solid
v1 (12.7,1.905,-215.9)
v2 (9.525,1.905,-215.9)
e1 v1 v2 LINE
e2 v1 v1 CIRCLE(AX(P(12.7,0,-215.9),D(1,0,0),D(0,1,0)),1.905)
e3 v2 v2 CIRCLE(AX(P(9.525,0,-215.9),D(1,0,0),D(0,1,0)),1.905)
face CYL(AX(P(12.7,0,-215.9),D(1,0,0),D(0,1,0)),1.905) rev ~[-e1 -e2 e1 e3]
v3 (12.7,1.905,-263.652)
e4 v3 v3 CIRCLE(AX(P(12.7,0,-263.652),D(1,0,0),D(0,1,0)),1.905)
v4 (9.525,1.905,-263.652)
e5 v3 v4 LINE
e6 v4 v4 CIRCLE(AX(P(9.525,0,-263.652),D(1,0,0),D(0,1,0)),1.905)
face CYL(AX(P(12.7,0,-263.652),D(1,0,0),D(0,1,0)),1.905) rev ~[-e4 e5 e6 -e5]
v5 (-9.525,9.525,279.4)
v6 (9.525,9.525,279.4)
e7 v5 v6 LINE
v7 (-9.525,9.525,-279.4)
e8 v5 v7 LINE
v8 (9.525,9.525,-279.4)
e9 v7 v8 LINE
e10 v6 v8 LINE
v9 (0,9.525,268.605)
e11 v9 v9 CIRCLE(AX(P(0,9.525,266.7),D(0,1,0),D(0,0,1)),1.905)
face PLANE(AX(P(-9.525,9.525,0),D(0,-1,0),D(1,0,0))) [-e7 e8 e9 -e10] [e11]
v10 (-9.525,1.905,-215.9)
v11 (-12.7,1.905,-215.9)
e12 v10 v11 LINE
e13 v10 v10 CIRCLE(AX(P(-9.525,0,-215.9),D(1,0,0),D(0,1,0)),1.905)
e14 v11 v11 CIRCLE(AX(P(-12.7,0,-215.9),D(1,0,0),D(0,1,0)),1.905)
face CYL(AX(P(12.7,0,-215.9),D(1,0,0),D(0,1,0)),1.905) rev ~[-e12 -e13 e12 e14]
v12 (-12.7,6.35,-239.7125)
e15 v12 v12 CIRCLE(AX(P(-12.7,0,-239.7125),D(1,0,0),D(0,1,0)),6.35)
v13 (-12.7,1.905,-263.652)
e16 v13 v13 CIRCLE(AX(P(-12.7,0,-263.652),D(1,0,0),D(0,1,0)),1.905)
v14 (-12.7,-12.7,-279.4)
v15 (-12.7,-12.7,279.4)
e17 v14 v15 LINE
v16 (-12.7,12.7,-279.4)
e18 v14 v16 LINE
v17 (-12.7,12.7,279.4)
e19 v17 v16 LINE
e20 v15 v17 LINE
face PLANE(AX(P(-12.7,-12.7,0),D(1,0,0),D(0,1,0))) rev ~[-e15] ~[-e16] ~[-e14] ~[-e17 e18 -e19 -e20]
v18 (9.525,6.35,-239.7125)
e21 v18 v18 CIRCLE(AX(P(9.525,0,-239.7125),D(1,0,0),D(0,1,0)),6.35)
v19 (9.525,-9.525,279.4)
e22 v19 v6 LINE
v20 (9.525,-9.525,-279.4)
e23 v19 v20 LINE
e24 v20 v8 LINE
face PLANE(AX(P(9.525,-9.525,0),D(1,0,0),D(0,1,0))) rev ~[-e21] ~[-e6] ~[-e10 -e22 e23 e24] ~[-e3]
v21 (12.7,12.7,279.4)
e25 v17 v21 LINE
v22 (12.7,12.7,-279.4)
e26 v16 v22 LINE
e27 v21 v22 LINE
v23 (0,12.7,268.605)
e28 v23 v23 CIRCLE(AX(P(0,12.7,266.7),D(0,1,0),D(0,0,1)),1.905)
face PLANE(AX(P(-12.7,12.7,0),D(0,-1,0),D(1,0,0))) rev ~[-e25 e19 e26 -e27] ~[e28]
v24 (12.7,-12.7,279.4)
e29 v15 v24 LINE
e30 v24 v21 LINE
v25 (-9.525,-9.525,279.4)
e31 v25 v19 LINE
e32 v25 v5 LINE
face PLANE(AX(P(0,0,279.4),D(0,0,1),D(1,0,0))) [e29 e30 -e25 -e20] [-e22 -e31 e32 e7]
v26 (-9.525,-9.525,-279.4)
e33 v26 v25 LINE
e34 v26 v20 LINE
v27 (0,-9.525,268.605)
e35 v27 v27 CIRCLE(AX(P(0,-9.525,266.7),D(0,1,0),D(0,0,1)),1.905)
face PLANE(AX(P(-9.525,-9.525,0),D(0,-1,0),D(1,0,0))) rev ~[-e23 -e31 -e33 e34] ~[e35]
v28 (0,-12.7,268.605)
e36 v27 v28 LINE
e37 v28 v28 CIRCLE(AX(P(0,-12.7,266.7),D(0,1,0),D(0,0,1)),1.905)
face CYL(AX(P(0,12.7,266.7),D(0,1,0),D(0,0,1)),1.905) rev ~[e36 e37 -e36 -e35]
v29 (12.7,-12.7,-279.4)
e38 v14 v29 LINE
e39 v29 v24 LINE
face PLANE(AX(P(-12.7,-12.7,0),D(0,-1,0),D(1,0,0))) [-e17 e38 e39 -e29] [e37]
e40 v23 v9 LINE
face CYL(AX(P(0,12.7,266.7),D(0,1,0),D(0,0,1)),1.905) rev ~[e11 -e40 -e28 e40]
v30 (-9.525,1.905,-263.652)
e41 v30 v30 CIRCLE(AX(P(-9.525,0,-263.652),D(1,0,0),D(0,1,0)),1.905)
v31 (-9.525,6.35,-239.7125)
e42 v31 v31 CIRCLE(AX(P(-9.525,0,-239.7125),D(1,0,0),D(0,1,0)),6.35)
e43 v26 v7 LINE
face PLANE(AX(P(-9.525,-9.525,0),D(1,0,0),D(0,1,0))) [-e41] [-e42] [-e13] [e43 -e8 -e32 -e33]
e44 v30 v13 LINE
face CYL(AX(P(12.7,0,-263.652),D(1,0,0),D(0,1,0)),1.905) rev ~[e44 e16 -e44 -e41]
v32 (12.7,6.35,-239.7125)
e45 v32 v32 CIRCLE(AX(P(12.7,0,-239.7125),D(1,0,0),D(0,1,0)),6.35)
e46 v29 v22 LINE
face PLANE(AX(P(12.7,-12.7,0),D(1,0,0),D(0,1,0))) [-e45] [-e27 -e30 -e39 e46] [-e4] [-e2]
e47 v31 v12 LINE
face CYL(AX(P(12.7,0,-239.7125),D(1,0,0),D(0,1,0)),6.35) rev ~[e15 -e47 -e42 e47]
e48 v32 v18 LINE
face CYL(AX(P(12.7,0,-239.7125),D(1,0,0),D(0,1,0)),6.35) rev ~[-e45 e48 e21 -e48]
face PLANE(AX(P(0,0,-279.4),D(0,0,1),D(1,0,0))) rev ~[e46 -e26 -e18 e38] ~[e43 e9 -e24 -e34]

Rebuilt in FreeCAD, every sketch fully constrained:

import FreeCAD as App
import Part
import Sketcher
Q = App.Units.Quantity

doc = App.newDocument("Part")
params = doc.addObject("Spreadsheet::Sheet", "Params")
for row, (alias, value) in enumerate([
    ("sketch1_width", "1 in"),
    ("sketch1_width2", "0.75 in"),
    ("pad1_length", "22 in"),
    ("sketch2_diameter", "0.15 in"),
    ("sketch3_diameter", "0.5 in"),
    ("sketch3_diameter2", "0.15 in"),
], start=1):
    params.set(f"A{row}", alias)
    params.set(f"B{row}", "=" + value)
    params.setAlias(f"B{row}", alias)

body = doc.addObject("PartDesign::Body", "Body")

sketch1 = body.newObject("Sketcher::SketchObject", "Sketch")
sketch1.AttachmentSupport = (doc.getObject("XY_Plane"), [""])
sketch1.MapMode = "FlatFace"
sketch1.addGeometry(Part.LineSegment(App.Vector(-13, 13, 0), App.Vector(-13, -13, 0)), False)
sketch1.addGeometry(Part.LineSegment(App.Vector(-13, -13, 0), App.Vector(13, -13, 0)), False)
sketch1.addGeometry(Part.LineSegment(App.Vector(13, -13, 0), App.Vector(13, 13, 0)), False)
sketch1.addGeometry(Part.LineSegment(App.Vector(13, 13, 0), App.Vector(-13, 13, 0)), False)
sketch1.addGeometry(Part.LineSegment(App.Vector(10, -10, 0), App.Vector(-10, -10, 0)), False)
sketch1.addGeometry(Part.LineSegment(App.Vector(-10, -10, 0), App.Vector(-10, 10, 0)), False)
sketch1.addGeometry(Part.LineSegment(App.Vector(-10, 10, 0), App.Vector(10, 10, 0)), False)
sketch1.addGeometry(Part.LineSegment(App.Vector(10, 10, 0), App.Vector(10, -10, 0)), False)
sketch1.addConstraint(Sketcher.Constraint("Coincident", 0, 2, 1, 1))
sketch1.addConstraint(Sketcher.Constraint("Coincident", 1, 2, 2, 1))
sketch1.addConstraint(Sketcher.Constraint("Coincident", 2, 2, 3, 1))
sketch1.addConstraint(Sketcher.Constraint("Coincident", 3, 2, 0, 1))
sketch1.addConstraint(Sketcher.Constraint("Coincident", 4, 2, 5, 1))
sketch1.addConstraint(Sketcher.Constraint("Coincident", 5, 2, 6, 1))
sketch1.addConstraint(Sketcher.Constraint("Coincident", 6, 2, 7, 1))
sketch1.addConstraint(Sketcher.Constraint("Coincident", 7, 2, 4, 1))
sketch1.addConstraint(Sketcher.Constraint("Vertical", 0))
sketch1.addConstraint(Sketcher.Constraint("Horizontal", 1))
sketch1.addConstraint(Sketcher.Constraint("Vertical", 2))
sketch1.addConstraint(Sketcher.Constraint("Horizontal", 3))
sketch1.addConstraint(Sketcher.Constraint("Horizontal", 4))
sketch1.addConstraint(Sketcher.Constraint("Vertical", 5))
sketch1.addConstraint(Sketcher.Constraint("Horizontal", 6))
sketch1.addConstraint(Sketcher.Constraint("Vertical", 7))
sketch1.addConstraint(Sketcher.Constraint("Symmetric", 0, 2, 2, 2, -1, 1))
sketch1.addConstraint(Sketcher.Constraint("Symmetric", 4, 2, 6, 2, -1, 1))
sketch1.addConstraint(Sketcher.Constraint("Equal", 3, 0))
sketch1.addConstraint(Sketcher.Constraint("Equal", 6, 5))
sketch1.addConstraint(Sketcher.Constraint("DistanceX", 1, 1, 1, 2, Q("1 in")))
sketch1.addConstraint(Sketcher.Constraint("DistanceX", 4, 2, 4, 1, Q("0.75 in")))
sketch1.setExpression("Constraints[20]", "Params.sketch1_width")
sketch1.setExpression("Constraints[21]", "Params.sketch1_width2")
pad1 = body.newObject("PartDesign::Pad", "Pad")
pad1.Profile = sketch1
pad1.setExpression("Length", "Params.pad1_length")
pad1.Midplane = True

sketch2 = body.newObject("Sketcher::SketchObject", "Sketch001")
sketch2.AttachmentSupport = (doc.getObject("XZ_Plane"), [""])
sketch2.MapMode = "FlatFace"
sketch2.AttachmentOffset = App.Placement(App.Vector(0, 0, -0.5 * 25.4), App.Rotation())
sketch2.addGeometry(Part.Circle(App.Vector(0, 266.7, 0), App.Vector(0, 0, 1), 1.9), False)
sketch2.addConstraint(Sketcher.Constraint("PointOnObject", 0, 3, -2))
sketch2.addConstraint(Sketcher.Constraint("Diameter", 0, Q("0.15 in")))
sketch2.addConstraint(Sketcher.Constraint("DistanceY", -1, 1, 0, 3, Q("10.5 in")))
sketch2.setExpression("Constraints[1]", "Params.sketch2_diameter")
pocket1 = body.newObject("PartDesign::Pocket", "Pocket")
pocket1.Profile = sketch2
pocket1.Type = "ThroughAll"
pocket1.Reversed = True

sketch3 = body.newObject("Sketcher::SketchObject", "Sketch002")
sketch3.AttachmentSupport = (doc.getObject("YZ_Plane"), [""])
sketch3.MapMode = "FlatFace"
sketch3.AttachmentOffset = App.Placement(App.Vector(0, 0, 0.5 * 25.4), App.Rotation())
sketch3.addGeometry(Part.Circle(App.Vector(0, -215.9, 0), App.Vector(0, 0, 1), 1.9), False)
sketch3.addGeometry(Part.Circle(App.Vector(0, -263.7, 0), App.Vector(0, 0, 1), 1.9), False)
sketch3.addGeometry(Part.Circle(App.Vector(0, -239.7, 0), App.Vector(0, 0, 1), 6.3), False)
sketch3.addConstraint(Sketcher.Constraint("Equal", 0, 1))
sketch3.addConstraint(Sketcher.Constraint("PointOnObject", 0, 3, -2))
sketch3.addConstraint(Sketcher.Constraint("PointOnObject", 1, 3, -2))
sketch3.addConstraint(Sketcher.Constraint("PointOnObject", 2, 3, -2))
sketch3.addConstraint(Sketcher.Constraint("Diameter", 2, Q("0.5 in")))
sketch3.addConstraint(Sketcher.Constraint("Diameter", 0, Q("0.15 in")))
sketch3.addConstraint(Sketcher.Constraint("DistanceY", 0, 3, -1, 1, Q("8.5 in")))
sketch3.addConstraint(Sketcher.Constraint("DistanceY", 1, 3, -1, 1, Q("10.38 in")))
sketch3.addConstraint(Sketcher.Constraint("DistanceY", 2, 3, -1, 1, Q("9.4375 in")))
sketch3.setExpression("Constraints[4]", "Params.sketch3_diameter")
sketch3.setExpression("Constraints[5]", "Params.sketch3_diameter2")
pocket2 = body.newObject("PartDesign::Pocket", "Pocket001")
pocket2.Profile = sketch3
pocket2.Type = "ThroughAll"

doc.recompute()
